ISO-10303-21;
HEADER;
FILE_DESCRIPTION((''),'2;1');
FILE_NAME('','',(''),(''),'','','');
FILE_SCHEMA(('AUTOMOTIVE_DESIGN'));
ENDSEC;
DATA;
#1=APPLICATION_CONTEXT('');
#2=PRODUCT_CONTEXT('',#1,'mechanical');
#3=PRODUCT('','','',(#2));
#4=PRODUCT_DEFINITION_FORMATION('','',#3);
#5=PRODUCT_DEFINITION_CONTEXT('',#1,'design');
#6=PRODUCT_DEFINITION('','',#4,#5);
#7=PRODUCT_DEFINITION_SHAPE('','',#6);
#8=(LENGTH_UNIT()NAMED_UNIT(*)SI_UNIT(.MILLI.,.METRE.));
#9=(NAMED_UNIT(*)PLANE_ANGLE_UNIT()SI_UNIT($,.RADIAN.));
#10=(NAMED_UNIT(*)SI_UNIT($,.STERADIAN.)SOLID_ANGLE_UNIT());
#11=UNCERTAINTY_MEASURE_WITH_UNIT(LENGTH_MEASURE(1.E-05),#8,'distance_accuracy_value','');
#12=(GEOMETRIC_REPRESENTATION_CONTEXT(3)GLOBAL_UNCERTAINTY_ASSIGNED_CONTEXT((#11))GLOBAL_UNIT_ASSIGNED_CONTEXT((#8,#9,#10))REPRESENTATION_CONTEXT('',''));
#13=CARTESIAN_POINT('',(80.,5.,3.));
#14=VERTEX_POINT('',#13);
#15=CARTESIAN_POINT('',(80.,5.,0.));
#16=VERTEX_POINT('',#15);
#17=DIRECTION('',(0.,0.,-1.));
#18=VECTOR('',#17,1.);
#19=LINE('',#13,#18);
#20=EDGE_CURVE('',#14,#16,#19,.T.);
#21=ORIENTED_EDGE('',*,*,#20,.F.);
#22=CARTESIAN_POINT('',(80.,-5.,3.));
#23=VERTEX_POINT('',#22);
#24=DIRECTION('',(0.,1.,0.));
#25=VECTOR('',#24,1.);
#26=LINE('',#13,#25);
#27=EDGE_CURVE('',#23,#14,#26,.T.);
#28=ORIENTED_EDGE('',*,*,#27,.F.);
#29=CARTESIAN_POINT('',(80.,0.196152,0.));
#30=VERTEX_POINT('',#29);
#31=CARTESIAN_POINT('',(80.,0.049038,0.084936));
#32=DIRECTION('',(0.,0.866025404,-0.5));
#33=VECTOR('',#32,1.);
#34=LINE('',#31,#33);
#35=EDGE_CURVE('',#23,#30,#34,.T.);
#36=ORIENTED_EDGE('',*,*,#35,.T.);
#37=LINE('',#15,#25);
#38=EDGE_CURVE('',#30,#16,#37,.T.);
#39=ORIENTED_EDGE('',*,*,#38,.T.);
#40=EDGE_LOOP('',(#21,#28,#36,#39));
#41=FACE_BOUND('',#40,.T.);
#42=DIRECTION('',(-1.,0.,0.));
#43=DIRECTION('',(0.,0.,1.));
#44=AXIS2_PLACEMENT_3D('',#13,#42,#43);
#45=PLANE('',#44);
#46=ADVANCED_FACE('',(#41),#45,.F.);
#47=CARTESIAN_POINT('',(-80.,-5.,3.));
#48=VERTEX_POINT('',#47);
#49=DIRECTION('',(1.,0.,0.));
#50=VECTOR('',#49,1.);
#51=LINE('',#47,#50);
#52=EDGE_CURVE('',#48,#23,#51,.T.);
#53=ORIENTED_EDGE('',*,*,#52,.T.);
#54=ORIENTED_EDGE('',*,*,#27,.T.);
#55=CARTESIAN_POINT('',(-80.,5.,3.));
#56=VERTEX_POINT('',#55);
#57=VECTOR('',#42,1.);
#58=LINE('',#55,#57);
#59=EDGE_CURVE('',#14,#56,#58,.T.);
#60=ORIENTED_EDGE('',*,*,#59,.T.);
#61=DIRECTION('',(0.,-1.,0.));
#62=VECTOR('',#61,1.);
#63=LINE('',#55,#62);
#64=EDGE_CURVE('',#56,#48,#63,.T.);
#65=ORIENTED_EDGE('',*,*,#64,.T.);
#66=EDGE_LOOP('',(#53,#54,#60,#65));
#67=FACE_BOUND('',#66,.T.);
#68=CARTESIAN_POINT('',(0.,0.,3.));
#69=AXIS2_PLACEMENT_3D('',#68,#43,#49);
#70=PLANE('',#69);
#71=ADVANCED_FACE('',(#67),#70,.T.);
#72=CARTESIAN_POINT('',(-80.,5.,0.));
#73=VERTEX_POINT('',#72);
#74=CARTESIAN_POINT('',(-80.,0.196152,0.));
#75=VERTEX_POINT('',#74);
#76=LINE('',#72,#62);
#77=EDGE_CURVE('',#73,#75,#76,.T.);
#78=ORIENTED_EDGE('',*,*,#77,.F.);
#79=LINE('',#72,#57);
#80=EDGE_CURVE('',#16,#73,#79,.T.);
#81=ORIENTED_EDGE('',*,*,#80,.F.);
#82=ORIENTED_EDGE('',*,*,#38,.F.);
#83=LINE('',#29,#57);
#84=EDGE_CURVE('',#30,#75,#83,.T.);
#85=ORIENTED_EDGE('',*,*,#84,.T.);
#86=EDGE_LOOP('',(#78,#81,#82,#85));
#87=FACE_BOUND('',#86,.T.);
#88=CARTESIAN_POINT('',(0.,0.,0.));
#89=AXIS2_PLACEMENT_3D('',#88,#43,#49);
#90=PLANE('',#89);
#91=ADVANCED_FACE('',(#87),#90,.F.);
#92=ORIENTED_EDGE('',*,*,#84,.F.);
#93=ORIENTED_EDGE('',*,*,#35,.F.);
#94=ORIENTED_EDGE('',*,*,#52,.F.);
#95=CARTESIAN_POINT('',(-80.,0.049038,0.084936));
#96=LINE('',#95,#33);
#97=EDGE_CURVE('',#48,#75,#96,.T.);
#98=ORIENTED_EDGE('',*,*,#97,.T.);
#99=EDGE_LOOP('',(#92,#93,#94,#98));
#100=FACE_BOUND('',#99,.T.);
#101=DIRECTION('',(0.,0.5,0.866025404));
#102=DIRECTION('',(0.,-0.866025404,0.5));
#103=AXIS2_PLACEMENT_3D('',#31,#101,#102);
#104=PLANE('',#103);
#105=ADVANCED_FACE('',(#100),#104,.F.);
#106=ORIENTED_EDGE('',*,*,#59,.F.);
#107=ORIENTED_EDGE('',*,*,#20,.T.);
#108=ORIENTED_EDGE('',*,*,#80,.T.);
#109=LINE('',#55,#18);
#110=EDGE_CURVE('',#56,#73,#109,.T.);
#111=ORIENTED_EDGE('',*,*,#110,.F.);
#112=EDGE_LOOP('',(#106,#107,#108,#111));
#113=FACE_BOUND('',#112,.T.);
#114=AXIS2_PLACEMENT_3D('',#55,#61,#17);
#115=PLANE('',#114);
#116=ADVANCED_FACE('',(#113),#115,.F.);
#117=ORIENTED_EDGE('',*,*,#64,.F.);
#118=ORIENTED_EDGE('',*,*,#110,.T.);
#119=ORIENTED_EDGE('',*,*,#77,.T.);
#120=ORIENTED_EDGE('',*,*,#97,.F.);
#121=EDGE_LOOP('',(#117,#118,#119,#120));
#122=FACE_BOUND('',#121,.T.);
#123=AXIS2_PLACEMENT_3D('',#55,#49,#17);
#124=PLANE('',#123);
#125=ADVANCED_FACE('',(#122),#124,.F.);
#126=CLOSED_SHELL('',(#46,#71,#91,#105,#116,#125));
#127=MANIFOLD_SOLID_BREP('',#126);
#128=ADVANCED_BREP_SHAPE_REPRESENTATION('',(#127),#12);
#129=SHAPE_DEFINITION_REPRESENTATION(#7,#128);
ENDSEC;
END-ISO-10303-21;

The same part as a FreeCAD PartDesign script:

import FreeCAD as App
import Part
import Sketcher

V = App.Vector
Q = App.Units.Quantity

doc = App.newDocument("Part")
body = doc.addObject("PartDesign::Body", "Body")

# Sketch on XY plane
sketch1 = doc.addObject("Sketcher::SketchObject", "Sketch")
body.addObject(sketch1)
sketch1.AttachmentSupport = (doc.XY_Plane, [""])
sketch1.MapMode = "FlatFace"
sketch1.addGeometry(Part.LineSegment(V(-80, 5, 0), V(-80, -5, 0)), False)
sketch1.addGeometry(Part.LineSegment(V(-80, -5, 0), V(80, -5, 0)), False)
sketch1.addGeometry(Part.LineSegment(V(80, -5, 0), V(80, 5, 0)), False)
sketch1.addGeometry(Part.LineSegment(V(80, 5, 0), V(-80, 5, 0)), False)
sketch1.addConstraint(Sketcher.Constraint("Coincident", 0, 2, 1, 1))
sketch1.addConstraint(Sketcher.Constraint("Coincident", 1, 2, 2, 1))
sketch1.addConstraint(Sketcher.Constraint("Coincident", 2, 2, 3, 1))
sketch1.addConstraint(Sketcher.Constraint("Coincident", 3, 2, 0, 1))
sketch1.addConstraint(Sketcher.Constraint("Vertical", 0))
sketch1.addConstraint(Sketcher.Constraint("Horizontal", 1))
sketch1.addConstraint(Sketcher.Constraint("Vertical", 2))
sketch1.addConstraint(Sketcher.Constraint("Horizontal", 3))
sketch1.addConstraint(Sketcher.Constraint("Symmetric", 0, 2, 2, 2, -1, 1))
sketch1.addConstraint(Sketcher.Constraint("DistanceX", 1, 1, 1, 2, 160.0))
sketch1.addConstraint(Sketcher.Constraint("DistanceY", 0, 2, 0, 1, 10.0))
pad1 = doc.addObject("PartDesign::Pad", "Pad")
body.addObject(pad1)
pad1.Profile = sketch1
pad1.Length = 3

# Sketch on YZ plane
sketch2 = doc.addObject("Sketcher::SketchObject", "Sketch001")
body.addObject(sketch2)
sketch2.AttachmentSupport = (doc.YZ_Plane, [""])
sketch2.MapMode = "FlatFace"
sketch2.AttachmentOffset = App.Placement(V(0, 0, -80), App.Rotation())
sketch2.addGeometry(Part.LineSegment(V(-5, 0, 0), V(-5, 3, 0)), False)
sketch2.addGeometry(Part.LineSegment(V(-5, 3, 0), V(0.2, 0, 0)), False)
sketch2.addGeometry(Part.LineSegment(V(0.2, 0, 0), V(-5, 0, 0)), False)
sketch2.addConstraint(Sketcher.Constraint("Coincident", 0, 2, 1, 1))
sketch2.addConstraint(Sketcher.Constraint("Coincident", 1, 2, 2, 1))
sketch2.addConstraint(Sketcher.Constraint("Coincident", 2, 2, 0, 1))
sketch2.addConstraint(Sketcher.Constraint("Vertical", 0))
sketch2.addConstraint(Sketcher.Constraint("Horizontal", 2))
sketch2.addConstraint(Sketcher.Constraint("PointOnObject", 1, 2, -1))
sketch2.addConstraint(Sketcher.Constraint("DistanceY", 0, 1, 0, 2, 3.0))
sketch2.addConstraint(Sketcher.Constraint("Angle", 1, Q("-30 deg")))
sketch2.addConstraint(Sketcher.Constraint("DistanceX", 0, 2, -1, 1, 5.0))
pocket1 = doc.addObject("PartDesign::Pocket", "Pocket")
body.addObject(pocket1)
pocket1.Profile = sketch2
pocket1.Type = "ThroughAll"
pocket1.Reversed = True

doc.recompute()
